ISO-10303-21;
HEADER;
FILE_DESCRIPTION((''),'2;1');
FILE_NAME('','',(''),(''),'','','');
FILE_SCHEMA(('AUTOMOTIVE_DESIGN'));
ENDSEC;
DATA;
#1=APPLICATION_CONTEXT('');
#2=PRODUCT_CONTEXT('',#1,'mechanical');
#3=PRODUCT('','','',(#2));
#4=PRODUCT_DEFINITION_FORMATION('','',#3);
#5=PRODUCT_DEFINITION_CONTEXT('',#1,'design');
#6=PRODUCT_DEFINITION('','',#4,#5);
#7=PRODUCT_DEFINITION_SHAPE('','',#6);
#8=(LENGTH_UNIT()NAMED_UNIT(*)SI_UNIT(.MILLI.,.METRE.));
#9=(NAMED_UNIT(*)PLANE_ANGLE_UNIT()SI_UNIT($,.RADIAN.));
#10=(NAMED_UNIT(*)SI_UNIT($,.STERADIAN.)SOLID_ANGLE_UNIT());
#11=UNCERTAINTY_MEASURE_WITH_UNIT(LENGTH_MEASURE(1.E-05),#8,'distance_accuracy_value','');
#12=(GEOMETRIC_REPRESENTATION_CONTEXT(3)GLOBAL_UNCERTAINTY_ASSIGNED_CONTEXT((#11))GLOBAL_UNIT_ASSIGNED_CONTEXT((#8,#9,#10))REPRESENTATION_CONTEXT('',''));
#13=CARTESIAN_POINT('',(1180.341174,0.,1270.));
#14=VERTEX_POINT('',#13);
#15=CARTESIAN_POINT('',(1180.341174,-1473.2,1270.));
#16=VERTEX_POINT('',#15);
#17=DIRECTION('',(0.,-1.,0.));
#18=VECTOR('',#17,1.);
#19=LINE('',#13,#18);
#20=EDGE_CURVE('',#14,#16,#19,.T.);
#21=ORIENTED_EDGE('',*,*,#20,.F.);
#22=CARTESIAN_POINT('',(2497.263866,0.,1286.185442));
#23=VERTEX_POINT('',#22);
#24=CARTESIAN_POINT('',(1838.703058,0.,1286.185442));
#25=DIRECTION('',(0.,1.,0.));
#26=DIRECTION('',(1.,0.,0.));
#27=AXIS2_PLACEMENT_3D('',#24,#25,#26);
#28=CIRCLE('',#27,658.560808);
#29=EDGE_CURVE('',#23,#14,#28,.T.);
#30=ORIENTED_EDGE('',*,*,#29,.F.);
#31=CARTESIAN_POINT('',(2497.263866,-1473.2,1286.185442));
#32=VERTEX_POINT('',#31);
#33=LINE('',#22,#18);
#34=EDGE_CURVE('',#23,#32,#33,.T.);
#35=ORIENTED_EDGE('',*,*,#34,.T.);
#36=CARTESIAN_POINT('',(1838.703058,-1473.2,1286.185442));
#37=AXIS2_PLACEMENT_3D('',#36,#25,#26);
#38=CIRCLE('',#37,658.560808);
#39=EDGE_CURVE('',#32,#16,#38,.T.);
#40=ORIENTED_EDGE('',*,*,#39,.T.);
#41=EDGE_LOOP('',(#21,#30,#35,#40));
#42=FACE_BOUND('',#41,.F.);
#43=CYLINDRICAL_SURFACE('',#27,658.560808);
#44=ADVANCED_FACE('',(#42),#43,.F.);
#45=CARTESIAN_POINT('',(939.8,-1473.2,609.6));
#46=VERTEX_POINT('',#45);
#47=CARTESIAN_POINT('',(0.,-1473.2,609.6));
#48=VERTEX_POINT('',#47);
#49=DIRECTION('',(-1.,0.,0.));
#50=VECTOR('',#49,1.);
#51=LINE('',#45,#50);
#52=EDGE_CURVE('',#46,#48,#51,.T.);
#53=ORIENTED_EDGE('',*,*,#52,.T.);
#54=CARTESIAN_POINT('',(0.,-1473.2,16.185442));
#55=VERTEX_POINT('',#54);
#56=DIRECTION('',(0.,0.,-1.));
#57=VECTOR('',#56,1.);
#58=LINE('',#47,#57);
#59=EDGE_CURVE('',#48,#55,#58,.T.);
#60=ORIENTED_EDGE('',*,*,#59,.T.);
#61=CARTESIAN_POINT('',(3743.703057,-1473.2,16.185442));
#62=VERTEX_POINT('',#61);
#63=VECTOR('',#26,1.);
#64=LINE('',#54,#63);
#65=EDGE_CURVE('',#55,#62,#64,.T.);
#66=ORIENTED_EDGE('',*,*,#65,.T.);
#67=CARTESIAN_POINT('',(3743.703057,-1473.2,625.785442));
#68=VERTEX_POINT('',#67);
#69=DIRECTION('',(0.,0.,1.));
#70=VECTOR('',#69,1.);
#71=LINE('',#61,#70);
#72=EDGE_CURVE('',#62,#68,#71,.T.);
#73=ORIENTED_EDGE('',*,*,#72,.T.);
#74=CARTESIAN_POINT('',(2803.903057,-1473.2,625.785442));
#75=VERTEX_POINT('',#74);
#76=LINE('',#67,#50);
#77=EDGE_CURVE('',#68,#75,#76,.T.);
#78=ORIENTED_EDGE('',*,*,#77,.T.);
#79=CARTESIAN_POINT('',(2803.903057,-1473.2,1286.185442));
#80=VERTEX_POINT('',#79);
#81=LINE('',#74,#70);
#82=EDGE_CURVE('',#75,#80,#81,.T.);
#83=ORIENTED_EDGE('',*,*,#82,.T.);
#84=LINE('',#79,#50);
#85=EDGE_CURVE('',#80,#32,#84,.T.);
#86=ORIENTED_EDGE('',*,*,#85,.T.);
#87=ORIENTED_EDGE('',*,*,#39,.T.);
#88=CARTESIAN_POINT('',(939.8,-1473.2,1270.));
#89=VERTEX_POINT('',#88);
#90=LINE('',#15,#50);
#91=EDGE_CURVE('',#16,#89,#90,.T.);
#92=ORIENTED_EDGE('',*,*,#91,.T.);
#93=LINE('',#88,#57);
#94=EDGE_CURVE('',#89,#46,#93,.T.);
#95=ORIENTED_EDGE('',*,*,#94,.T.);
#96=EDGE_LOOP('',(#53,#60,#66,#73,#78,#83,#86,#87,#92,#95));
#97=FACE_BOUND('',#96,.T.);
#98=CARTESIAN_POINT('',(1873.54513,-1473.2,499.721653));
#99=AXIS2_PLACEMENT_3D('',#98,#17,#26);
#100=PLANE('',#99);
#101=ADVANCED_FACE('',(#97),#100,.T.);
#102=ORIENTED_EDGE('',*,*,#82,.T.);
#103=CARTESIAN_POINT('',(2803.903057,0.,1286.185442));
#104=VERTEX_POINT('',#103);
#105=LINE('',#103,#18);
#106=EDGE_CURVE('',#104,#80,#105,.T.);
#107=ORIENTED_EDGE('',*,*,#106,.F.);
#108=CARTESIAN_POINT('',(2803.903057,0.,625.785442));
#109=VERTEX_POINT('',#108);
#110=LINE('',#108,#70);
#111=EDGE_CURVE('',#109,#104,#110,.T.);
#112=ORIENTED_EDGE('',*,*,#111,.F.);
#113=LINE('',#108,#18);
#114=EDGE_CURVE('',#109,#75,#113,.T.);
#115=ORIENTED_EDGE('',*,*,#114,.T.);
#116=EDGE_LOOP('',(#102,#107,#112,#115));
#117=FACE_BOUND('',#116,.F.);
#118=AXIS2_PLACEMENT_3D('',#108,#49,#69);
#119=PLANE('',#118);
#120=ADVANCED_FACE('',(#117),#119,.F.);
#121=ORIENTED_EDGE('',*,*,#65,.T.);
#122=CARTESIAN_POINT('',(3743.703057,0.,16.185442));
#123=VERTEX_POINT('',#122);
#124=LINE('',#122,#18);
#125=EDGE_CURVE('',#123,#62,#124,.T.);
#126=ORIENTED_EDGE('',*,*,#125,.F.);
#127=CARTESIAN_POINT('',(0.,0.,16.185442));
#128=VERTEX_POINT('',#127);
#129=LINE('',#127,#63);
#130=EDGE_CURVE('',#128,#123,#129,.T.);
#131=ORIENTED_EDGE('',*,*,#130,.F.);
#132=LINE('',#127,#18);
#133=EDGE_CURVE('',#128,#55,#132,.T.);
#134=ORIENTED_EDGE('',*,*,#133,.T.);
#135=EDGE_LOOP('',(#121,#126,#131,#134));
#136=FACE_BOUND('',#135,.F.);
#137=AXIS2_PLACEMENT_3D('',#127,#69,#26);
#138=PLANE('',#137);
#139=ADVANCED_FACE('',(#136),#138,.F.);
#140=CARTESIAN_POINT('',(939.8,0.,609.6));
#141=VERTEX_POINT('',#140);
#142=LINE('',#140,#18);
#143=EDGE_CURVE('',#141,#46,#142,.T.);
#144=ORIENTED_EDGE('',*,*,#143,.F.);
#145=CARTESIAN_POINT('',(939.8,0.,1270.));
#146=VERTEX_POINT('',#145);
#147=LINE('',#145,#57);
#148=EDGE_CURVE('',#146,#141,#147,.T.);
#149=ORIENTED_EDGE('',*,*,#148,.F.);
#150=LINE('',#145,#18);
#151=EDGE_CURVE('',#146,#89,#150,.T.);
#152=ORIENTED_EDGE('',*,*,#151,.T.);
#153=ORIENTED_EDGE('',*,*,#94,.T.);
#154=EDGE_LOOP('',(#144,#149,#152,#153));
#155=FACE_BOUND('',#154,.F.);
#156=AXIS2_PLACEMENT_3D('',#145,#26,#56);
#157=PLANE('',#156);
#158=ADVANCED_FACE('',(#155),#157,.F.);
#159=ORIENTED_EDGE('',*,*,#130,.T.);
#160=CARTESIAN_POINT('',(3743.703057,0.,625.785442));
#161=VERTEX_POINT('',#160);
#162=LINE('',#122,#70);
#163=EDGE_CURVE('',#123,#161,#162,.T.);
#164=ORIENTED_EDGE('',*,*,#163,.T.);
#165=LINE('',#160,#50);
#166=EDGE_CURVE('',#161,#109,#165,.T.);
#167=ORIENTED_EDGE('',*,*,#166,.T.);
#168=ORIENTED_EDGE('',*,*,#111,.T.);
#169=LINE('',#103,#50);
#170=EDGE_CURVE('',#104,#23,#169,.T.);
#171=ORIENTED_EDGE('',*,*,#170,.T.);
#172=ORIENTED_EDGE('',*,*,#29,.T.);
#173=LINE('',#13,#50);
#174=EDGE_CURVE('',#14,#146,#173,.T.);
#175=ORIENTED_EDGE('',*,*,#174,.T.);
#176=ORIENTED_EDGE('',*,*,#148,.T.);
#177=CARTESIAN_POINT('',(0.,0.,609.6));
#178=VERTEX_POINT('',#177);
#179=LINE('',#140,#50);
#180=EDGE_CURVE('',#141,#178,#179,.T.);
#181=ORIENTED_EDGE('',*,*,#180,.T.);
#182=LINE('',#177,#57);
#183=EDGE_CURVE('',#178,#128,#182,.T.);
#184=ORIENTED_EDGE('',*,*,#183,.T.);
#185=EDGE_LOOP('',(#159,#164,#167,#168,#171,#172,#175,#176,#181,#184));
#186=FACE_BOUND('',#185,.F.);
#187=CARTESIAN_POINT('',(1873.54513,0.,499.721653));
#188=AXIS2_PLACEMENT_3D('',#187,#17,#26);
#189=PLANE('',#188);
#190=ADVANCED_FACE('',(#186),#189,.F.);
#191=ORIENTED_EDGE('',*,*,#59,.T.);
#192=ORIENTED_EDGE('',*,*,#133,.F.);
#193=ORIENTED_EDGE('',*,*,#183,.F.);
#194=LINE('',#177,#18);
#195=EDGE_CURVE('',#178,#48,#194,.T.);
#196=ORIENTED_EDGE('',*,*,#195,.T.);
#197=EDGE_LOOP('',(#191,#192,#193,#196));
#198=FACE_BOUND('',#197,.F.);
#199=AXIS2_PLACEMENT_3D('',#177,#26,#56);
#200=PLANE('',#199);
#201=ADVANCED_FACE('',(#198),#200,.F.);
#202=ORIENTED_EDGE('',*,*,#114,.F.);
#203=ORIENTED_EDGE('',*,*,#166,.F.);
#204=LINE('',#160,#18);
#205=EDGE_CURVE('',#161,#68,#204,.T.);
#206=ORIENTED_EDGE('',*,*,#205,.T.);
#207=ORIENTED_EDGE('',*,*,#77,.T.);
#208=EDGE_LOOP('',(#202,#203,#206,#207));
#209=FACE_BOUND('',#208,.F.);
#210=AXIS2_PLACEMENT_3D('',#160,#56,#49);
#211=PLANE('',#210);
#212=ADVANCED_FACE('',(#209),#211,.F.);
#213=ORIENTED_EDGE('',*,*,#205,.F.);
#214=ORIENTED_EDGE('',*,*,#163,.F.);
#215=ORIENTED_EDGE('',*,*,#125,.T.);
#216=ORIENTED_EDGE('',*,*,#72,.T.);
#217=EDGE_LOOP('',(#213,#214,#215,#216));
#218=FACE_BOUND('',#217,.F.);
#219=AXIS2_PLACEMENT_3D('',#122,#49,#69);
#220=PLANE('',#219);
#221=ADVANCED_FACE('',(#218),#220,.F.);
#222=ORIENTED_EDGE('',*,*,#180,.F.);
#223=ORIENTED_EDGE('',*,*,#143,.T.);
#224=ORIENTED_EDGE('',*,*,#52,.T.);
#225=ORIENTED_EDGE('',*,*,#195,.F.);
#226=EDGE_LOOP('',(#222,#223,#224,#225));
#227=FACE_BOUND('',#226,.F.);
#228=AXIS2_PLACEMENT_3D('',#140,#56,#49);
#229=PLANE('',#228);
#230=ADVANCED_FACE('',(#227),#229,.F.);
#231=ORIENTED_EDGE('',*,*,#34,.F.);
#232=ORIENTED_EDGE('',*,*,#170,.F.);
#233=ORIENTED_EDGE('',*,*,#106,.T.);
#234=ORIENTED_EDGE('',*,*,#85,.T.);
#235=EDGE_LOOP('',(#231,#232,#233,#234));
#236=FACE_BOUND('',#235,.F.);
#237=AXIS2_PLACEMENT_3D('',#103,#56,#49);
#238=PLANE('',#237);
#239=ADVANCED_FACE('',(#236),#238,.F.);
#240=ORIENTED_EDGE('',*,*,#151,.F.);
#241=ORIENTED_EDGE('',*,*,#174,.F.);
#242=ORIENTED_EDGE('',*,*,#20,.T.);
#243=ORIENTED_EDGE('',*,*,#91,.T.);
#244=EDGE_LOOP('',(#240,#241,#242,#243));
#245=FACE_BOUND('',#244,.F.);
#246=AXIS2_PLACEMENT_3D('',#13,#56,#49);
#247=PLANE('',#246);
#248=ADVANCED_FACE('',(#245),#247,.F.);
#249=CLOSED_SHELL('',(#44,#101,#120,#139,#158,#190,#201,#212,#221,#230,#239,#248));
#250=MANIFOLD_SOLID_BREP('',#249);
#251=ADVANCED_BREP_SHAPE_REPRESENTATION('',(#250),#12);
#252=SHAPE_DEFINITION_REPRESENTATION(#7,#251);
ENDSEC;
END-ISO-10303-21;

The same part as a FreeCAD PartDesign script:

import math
import FreeCAD as App
import Part
import Sketcher
Q = App.Units.Quantity

doc = App.newDocument("Part")
body = doc.addObject("PartDesign::Body", "Body")

# Sketch on XZ plane
sketch1 = doc.addObject("Sketcher::SketchObject", "Sketch")
body.addObject(sketch1)
sketch1.AttachmentSupport = (doc.XZ_Plane, [""])
sketch1.MapMode = "FlatFace"
sketch1.addGeometry(Part.LineSegment(App.Vector(0, 610, 0), App.Vector(0, 16, 0)), False)
sketch1.addGeometry(Part.LineSegment(App.Vector(0, 16, 0), App.Vector(3744, 16, 0)), False)
sketch1.addGeometry(Part.LineSegment(App.Vector(3744, 16, 0), App.Vector(3744, 626, 0)), False)
sketch1.addGeometry(Part.LineSegment(App.Vector(3744, 626, 0), App.Vector(2804, 626, 0)), False)
sketch1.addGeometry(Part.LineSegment(App.Vector(2804, 626, 0), App.Vector(2804, 1286, 0)), False)
sketch1.addGeometry(Part.LineSegment(App.Vector(2804, 1286, 0), App.Vector(2497, 1286, 0)), False)
sketch1.addGeometry(Part.ArcOfCircle(Part.Circle(App.Vector(1839, 1286, 0), App.Vector(0, 0, 1), 659), math.radians(-179), math.radians(0)), False)
sketch1.addGeometry(Part.LineSegment(App.Vector(1180, 1270, 0), App.Vector(940, 1270, 0)), False)
sketch1.addGeometry(Part.LineSegment(App.Vector(940, 1270, 0), App.Vector(940, 610, 0)), False)
sketch1.addGeometry(Part.LineSegment(App.Vector(940, 610, 0), App.Vector(0, 610, 0)), False)
sketch1.addConstraint(Sketcher.Constraint("Coincident", 0, 2, 1, 1))
sketch1.addConstraint(Sketcher.Constraint("Coincident", 1, 2, 2, 1))
sketch1.addConstraint(Sketcher.Constraint("Coincident", 2, 2, 3, 1))
sketch1.addConstraint(Sketcher.Constraint("Coincident", 3, 2, 4, 1))
sketch1.addConstraint(Sketcher.Constraint("Coincident", 4, 2, 5, 1))
sketch1.addConstraint(Sketcher.Constraint("Coincident", 5, 2, 6, 2))
sketch1.addConstraint(Sketcher.Constraint("Coincident", 6, 1, 7, 1))
sketch1.addConstraint(Sketcher.Constraint("Coincident", 7, 2, 8, 1))
sketch1.addConstraint(Sketcher.Constraint("Coincident", 8, 2, 9, 1))
sketch1.addConstraint(Sketcher.Constraint("Coincident", 9, 2, 0, 1))
sketch1.addConstraint(Sketcher.Constraint("Vertical", 0))
sketch1.addConstraint(Sketcher.Constraint("Horizontal", 1))
sketch1.addConstraint(Sketcher.Constraint("Vertical", 2))
sketch1.addConstraint(Sketcher.Constraint("Horizontal", 3))
sketch1.addConstraint(Sketcher.Constraint("Vertical", 4))
sketch1.addConstraint(Sketcher.Constraint("Horizontal", 5))
sketch1.addConstraint(Sketcher.Constraint("Horizontal", 7))
sketch1.addConstraint(Sketcher.Constraint("Vertical", 8))
sketch1.addConstraint(Sketcher.Constraint("Horizontal", 9))
sketch1.addConstraint(Sketcher.Constraint("PointOnObject", 0, 2, -2))
sketch1.addConstraint(Sketcher.Constraint("Horizontal", 6, 3, 4, 2))
sketch1.addConstraint(Sketcher.Constraint("Equal", 3, 9))
sketch1.addConstraint(Sketcher.Constraint("Equal", 4, 8))
sketch1.addConstraint(Sketcher.Constraint("DistanceX", 3, 2, 3, 1, Q("37 in")))
sketch1.addConstraint(Sketcher.Constraint("DistanceY", 2, 1, 2, 2, Q("24 in")))
sketch1.addConstraint(Sketcher.Constraint("DistanceY", 4, 1, 4, 2, Q("26 in")))
sketch1.addConstraint(Sketcher.Constraint("DistanceY", -1, 1, 7, 2, Q("50 in")))
sketch1.addConstraint(Sketcher.Constraint("DistanceX", 6, 3, 1, 2, Q("75 in")))
sketch1.addConstraint(Sketcher.Constraint("Radius", 6, 658.560808))
sketch1.addConstraint(Sketcher.Constraint("DistanceY", 0, 2, 0, 1, 593.414558))
sketch1.addConstraint(Sketcher.Constraint("DistanceX", 1, 1, 1, 2, 3743.703057))
pad1 = doc.addObject("PartDesign::Pad", "Pad")
body.addObject(pad1)
pad1.Profile = sketch1
pad1.Length = Q("58 in")

doc.recompute()
